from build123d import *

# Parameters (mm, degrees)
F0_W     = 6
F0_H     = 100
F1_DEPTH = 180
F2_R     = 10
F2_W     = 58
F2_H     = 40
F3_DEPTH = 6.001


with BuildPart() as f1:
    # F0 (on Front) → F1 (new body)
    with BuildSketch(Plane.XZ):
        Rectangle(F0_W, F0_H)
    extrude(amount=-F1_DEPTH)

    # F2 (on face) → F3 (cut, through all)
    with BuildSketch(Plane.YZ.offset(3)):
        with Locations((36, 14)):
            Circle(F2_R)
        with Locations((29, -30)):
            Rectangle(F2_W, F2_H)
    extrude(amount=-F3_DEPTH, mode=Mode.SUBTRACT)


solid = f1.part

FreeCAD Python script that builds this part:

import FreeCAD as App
import Part
import Sketcher

doc = App.newDocument("Part")
body = doc.addObject("PartDesign::Body", "Body")

# Sketch on XZ plane
sketch1 = doc.addObject("Sketcher::SketchObject", "Sketch")
body.addObject(sketch1)
sketch1.AttachmentSupport = (doc.XZ_Plane, [""])
sketch1.MapMode = "FlatFace"
sketch1.addGeometry([
    Part.LineSegment(App.Vector(-3, 50, 0), App.Vector(-3, -50, 0)),
    Part.LineSegment(App.Vector(-3, -50, 0), App.Vector(3, -50, 0)),
    Part.LineSegment(App.Vector(3, -50, 0), App.Vector(3, 50, 0)),
    Part.LineSegment(App.Vector(3, 50, 0), App.Vector(-3, 50, 0)),
], False)
sketch1.addConstraint([
    Sketcher.Constraint("Coincident", 0, 2, 1, 1),
    Sketcher.Constraint("Coincident", 1, 2, 2, 1),
    Sketcher.Constraint("Coincident", 2, 2, 3, 1),
    Sketcher.Constraint("Coincident", 3, 2, 0, 1),
    Sketcher.Constraint("Vertical", 0),
    Sketcher.Constraint("Horizontal", 1),
    Sketcher.Constraint("Vertical", 2),
    Sketcher.Constraint("Horizontal", 3),
    Sketcher.Constraint("Symmetric", 0, 2, 2, 2, -1, 1),
    Sketcher.Constraint("DistanceX", 1, 1, 1, 2, 6.0),
    Sketcher.Constraint("DistanceY", 0, 2, 0, 1, 100.0),
])
pad1 = doc.addObject("PartDesign::Pad", "Pad")
body.addObject(pad1)
pad1.Profile = sketch1
pad1.Length = 180
pad1.Reversed = True

# Sketch on YZ plane
sketch2 = doc.addObject("Sketcher::SketchObject", "Sketch001")
body.addObject(sketch2)
sketch2.AttachmentSupport = (doc.YZ_Plane, [""])
sketch2.MapMode = "FlatFace"
sketch2.AttachmentOffset = App.Placement(App.Vector(0, 0, 3), App.Rotation())
sketch2.addGeometry([
    Part.Circle(App.Vector(36, 14, 0), App.Vector(0, 0, 1), 10),  # 0
    Part.LineSegment(App.Vector(0, -10, 0), App.Vector(0, -50, 0)),  # 1
    Part.LineSegment(App.Vector(0, -50, 0), App.Vector(58, -50, 0)),  # 2
    Part.LineSegment(App.Vector(58, -50, 0), App.Vector(58, -10, 0)),  # 3
    Part.LineSegment(App.Vector(58, -10, 0), App.Vector(0, -10, 0)),  # 4
], False)
sketch2.addConstraint([
    Sketcher.Constraint("Coincident", 1, 2, 2, 1),
    Sketcher.Constraint("Coincident", 2, 2, 3, 1),
    Sketcher.Constraint("Coincident", 3, 2, 4, 1),
    Sketcher.Constraint("Coincident", 4, 2, 1, 1),
    Sketcher.Constraint("Vertical", 1),
    Sketcher.Constraint("Horizontal", 2),
    Sketcher.Constraint("Vertical", 3),
    Sketcher.Constraint("Horizontal", 4),
    Sketcher.Constraint("PointOnObject", 1, 2, -2),
    Sketcher.Constraint("Diameter", 0, 20.0),
    Sketcher.Constraint("DistanceX", 2, 1, 2, 2, 58.0),
    Sketcher.Constraint("DistanceY", 1, 2, 1, 1, 40.0),
    Sketcher.Constraint("DistanceX", -1, 1, 0, 3, 36.0),
    Sketcher.Constraint("DistanceY", -1, 1, 0, 3, 14.0),
    Sketcher.Constraint("DistanceY", 1, 2, -1, 1, 50.0),
])
pocket1 = doc.addObject("PartDesign::Pocket", "Pocket")
body.addObject(pocket1)
pocket1.Profile = sketch2
pocket1.Type = "ThroughAll"

doc.recompute()
